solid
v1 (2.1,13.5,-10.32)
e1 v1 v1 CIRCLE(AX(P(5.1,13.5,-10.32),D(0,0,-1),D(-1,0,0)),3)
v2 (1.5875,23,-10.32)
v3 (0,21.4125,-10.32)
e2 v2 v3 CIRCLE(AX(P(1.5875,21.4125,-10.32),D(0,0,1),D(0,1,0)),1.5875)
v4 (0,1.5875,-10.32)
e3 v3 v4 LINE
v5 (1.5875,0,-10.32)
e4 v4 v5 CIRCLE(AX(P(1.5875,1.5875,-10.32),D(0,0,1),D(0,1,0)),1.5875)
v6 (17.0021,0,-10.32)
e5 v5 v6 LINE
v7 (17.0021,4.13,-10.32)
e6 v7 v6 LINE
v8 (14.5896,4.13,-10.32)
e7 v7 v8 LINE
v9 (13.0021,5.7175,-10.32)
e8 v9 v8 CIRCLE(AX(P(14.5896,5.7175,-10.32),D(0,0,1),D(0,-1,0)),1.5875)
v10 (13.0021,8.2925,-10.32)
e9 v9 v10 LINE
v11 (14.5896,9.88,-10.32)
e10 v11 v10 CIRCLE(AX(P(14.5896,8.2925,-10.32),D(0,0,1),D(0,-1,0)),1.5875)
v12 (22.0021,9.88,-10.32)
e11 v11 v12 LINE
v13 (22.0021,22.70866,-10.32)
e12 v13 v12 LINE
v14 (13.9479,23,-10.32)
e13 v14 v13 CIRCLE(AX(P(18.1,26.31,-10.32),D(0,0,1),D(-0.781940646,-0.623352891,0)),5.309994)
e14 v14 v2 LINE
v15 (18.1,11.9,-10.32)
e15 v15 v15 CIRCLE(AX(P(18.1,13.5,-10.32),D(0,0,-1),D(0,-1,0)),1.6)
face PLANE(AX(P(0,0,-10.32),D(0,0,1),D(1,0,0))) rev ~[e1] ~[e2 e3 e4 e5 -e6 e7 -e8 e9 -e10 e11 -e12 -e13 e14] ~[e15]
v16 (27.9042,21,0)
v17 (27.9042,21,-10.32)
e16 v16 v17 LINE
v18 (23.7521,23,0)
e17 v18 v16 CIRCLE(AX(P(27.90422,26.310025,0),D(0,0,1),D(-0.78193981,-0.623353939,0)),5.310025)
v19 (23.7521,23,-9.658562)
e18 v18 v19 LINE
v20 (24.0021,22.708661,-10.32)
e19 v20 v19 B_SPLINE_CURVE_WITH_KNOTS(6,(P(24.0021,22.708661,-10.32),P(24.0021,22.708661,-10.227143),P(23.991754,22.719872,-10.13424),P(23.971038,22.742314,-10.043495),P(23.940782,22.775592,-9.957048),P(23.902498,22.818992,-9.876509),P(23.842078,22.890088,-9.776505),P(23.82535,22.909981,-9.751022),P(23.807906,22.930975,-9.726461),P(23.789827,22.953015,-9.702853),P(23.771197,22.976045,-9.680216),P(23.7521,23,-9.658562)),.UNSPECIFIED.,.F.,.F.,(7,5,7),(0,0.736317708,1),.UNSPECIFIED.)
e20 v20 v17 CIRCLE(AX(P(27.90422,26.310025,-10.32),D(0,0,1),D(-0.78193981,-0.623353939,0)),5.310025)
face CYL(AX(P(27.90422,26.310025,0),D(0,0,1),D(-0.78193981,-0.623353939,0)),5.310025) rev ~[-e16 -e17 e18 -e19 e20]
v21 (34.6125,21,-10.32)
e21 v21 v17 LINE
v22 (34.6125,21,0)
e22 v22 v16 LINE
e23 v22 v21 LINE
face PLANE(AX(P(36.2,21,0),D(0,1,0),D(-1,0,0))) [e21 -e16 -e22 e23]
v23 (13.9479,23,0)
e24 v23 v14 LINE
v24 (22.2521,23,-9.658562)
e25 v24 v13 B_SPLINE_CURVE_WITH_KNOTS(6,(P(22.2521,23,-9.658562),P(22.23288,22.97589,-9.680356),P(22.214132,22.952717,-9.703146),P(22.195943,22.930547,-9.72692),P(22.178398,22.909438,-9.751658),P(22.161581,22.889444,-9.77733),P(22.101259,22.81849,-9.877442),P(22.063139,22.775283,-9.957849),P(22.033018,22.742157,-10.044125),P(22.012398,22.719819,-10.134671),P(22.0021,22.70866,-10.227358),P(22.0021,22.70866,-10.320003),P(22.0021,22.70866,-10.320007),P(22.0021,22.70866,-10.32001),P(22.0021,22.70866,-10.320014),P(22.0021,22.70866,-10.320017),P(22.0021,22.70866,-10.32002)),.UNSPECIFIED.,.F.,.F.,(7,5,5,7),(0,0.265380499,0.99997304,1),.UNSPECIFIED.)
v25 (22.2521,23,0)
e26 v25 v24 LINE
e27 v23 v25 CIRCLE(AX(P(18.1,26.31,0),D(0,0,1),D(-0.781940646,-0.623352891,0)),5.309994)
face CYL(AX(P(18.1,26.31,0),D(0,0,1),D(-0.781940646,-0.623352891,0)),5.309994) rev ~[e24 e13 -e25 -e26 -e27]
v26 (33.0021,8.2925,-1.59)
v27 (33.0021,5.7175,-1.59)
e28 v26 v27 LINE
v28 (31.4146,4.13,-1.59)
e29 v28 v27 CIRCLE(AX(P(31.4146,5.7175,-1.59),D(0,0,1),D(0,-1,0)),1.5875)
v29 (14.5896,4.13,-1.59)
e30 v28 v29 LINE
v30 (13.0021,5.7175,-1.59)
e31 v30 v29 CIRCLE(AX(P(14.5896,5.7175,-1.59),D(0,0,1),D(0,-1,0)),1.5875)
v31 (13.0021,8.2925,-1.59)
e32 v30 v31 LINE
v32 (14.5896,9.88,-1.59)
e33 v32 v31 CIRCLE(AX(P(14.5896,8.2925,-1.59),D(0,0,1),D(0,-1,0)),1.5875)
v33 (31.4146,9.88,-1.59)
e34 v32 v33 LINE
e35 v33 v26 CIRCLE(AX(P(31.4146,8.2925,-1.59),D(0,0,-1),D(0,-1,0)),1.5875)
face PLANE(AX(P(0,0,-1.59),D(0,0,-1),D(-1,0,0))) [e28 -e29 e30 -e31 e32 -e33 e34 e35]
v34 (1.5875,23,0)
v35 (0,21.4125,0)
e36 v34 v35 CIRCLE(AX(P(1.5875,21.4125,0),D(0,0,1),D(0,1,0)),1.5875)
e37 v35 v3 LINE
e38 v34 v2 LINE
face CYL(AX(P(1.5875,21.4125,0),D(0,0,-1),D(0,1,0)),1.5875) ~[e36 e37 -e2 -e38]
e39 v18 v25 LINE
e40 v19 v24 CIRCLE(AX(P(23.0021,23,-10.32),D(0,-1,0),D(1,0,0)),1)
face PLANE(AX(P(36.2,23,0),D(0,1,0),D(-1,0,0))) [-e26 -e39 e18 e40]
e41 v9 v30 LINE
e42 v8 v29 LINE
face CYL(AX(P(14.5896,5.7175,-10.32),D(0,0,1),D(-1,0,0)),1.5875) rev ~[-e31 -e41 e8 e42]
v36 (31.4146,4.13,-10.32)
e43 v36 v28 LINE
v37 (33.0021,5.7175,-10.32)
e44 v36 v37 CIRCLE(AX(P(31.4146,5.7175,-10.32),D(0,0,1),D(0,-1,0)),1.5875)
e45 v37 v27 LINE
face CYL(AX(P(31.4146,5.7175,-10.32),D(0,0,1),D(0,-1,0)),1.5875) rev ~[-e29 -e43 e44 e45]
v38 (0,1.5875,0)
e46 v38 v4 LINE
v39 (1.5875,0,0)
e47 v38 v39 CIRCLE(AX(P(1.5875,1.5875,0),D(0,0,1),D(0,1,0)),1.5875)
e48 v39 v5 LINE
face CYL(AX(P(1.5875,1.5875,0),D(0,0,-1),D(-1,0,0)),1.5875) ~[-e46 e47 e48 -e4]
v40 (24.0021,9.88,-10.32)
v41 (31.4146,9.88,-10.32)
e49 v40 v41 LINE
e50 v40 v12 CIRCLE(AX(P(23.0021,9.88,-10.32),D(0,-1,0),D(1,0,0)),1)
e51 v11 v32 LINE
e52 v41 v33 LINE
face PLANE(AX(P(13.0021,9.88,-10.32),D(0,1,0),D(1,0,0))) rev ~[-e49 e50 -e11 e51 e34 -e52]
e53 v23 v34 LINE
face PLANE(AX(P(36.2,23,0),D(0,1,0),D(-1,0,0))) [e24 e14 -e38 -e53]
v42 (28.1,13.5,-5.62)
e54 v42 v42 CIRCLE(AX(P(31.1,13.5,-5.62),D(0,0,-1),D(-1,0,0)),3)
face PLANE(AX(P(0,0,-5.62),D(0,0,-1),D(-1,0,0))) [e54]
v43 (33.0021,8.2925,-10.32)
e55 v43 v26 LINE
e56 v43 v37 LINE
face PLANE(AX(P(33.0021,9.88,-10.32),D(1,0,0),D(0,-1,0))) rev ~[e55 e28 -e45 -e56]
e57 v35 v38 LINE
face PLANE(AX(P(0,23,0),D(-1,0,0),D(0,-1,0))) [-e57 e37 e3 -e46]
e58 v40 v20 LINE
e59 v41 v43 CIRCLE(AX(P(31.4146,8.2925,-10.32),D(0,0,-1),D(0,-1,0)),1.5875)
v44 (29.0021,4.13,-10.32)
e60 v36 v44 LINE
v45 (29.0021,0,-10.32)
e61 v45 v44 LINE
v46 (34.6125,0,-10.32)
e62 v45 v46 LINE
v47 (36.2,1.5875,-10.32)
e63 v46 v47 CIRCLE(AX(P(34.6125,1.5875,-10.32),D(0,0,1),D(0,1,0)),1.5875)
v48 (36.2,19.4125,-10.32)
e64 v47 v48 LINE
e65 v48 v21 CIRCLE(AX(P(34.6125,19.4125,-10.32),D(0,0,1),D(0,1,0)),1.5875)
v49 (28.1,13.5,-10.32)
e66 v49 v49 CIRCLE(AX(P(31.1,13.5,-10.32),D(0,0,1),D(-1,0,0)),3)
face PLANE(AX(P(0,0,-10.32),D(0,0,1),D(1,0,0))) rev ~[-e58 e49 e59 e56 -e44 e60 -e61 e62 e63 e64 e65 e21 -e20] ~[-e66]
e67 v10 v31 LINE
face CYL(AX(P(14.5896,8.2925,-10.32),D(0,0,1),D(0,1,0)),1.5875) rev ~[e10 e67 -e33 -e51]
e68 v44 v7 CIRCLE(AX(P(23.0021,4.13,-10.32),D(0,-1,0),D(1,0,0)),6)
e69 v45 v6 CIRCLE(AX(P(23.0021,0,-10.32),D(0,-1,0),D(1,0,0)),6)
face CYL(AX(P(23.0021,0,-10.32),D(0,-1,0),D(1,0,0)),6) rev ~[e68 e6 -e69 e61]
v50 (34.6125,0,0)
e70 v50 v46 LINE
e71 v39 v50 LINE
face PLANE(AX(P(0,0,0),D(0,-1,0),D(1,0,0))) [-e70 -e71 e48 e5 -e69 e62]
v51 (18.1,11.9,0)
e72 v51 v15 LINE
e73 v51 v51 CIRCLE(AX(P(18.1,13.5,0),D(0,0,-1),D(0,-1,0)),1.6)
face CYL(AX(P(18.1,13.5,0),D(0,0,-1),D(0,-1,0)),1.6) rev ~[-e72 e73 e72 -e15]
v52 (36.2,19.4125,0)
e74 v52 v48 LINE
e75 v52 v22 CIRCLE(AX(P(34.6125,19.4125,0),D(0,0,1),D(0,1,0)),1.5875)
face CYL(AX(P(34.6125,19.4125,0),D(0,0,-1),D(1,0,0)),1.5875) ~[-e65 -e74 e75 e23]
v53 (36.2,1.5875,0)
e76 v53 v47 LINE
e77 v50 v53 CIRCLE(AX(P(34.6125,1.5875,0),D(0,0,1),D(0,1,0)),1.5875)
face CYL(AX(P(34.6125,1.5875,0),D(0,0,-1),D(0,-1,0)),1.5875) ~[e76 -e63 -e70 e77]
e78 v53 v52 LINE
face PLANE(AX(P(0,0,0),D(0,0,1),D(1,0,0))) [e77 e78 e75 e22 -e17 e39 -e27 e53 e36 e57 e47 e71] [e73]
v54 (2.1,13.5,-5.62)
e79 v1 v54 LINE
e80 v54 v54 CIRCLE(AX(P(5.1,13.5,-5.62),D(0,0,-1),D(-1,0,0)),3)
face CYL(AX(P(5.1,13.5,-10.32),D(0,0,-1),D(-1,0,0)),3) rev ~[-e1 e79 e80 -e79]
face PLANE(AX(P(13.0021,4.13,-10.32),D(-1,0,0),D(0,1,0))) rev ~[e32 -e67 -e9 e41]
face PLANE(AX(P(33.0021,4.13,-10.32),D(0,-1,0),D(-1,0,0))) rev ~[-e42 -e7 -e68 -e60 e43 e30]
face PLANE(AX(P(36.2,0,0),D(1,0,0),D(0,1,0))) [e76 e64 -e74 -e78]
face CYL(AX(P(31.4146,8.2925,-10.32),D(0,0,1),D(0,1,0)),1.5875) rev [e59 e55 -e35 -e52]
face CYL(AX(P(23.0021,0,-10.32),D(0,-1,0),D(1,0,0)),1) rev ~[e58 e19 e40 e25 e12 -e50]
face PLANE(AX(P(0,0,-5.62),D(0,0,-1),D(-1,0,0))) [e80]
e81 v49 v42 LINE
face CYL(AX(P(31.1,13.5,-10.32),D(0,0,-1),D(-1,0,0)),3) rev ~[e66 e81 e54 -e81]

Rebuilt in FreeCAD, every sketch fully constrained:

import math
import FreeCAD as App
import Part
import Sketcher
from FreeCAD import Vector
Q = App.Units.Quantity


def edges_at(feature, points):
    """Names of the edges that pass closest to the given points."""
    edges = feature.Shape.Edges
    near = lambda p: min(range(len(edges)), key=lambda i: edges[i].distToShape(Part.Vertex(*p))[0])
    return sorted({f"Edge{near(p) + 1}" for p in points})


def add_polygon(sketch, points):
    """Adds a closed chain of lines whose ends are joined by coincident constraints."""
    first, n = sketch.GeometryCount, len(points)
    for a, b in zip(points, points[1:] + points[:1]):
        sketch.addGeometry(Part.LineSegment(App.Vector(*a, 0), App.Vector(*b, 0)), False)
    for i in range(n):
        sketch.addConstraint(Sketcher.Constraint("Coincident", first + i, 2, first + (i + 1) % n, 1))

doc = App.newDocument("Part")
body = doc.addObject("PartDesign::Body", "Body")

# Sketch on XY plane
sketch1 = body.newObject("Sketcher::SketchObject", "Sketch")
sketch1.AttachmentSupport = (doc.getObject("XY_Plane"), [""])
sketch1.MapMode = "FlatFace"
add_polygon(sketch1, [(0, 23), (0, 0), (36.2, 0), (36.2, 23)])  # lines 0-3
sketch1.addConstraint(Sketcher.Constraint("Vertical", 0))
sketch1.addConstraint(Sketcher.Constraint("Horizontal", 1))
sketch1.addConstraint(Sketcher.Constraint("Vertical", 2))
sketch1.addConstraint(Sketcher.Constraint("Horizontal", 3))
sketch1.addConstraint(Sketcher.Constraint("Coincident", 0, 2, -1, 1))
sketch1.addConstraint(Sketcher.Constraint("DistanceY", 0, 2, 0, 1, Q("23 mm")))
sketch1.addConstraint(Sketcher.Constraint("DistanceX", 1, 1, 1, 2, Q("36.2 mm")))
pad1 = body.newObject("PartDesign::Pad", "Pad")
pad1.Profile = sketch1
pad1.Length = 10.32
pad1.Reversed = True

# Sketch on XY plane
sketch2 = body.newObject("Sketcher::SketchObject", "Sketch001")
sketch2.AttachmentSupport = (doc.getObject("XY_Plane"), [""])
sketch2.MapMode = "FlatFace"
sketch2.addGeometry(Part.Circle(Vector(18.1, 13.5, 0), Vector(0, 0, 1), 1.6), False)
sketch2.addConstraint(Sketcher.Constraint("Diameter", 0, Q("3.2 mm")))
sketch2.addConstraint(Sketcher.Constraint("DistanceX", -1, 1, 0, 3, Q("18.1 mm")))
sketch2.addConstraint(Sketcher.Constraint("DistanceY", -1, 1, 0, 3, Q("13.5 mm")))
doc.recompute()
hole = body.newObject("PartDesign::Hole", "Hole")
hole.Profile = sketch2
hole.ThreadType = "None"
hole.Diameter = 3.2
hole.DepthType = "ThroughAll"

# Sketch on XY plane
sketch3 = body.newObject("Sketcher::SketchObject", "Sketch002")
sketch3.AttachmentSupport = (doc.getObject("XY_Plane"), [""])
sketch3.MapMode = "FlatFace"
sketch3.addGeometry(Part.LineSegment(Vector(27.9042, 21, 0), Vector(36.2, 21, 0)), False)
sketch3.addGeometry(Part.LineSegment(Vector(36.2, 21, 0), Vector(36.2, 23, 0)), False)
sketch3.addGeometry(Part.LineSegment(Vector(36.2, 23, 0), Vector(23.7521, 23, 0)), False)
sketch3.addGeometry(Part.ArcOfCircle(Part.Circle(Vector(27.9042, 26.31, 0), Vector(0, 0, 1), 5.309994), math.radians(-141.438604), math.radians(-90)), False)
sketch3.addGeometry(Part.LineSegment(Vector(22.2521, 23, 0), Vector(13.9479, 23, 0)), False)
sketch3.addGeometry(Part.ArcOfCircle(Part.Circle(Vector(18.1, 26.31, 0), Vector(0, 0, 1), 5.309994), math.radians(-141.438604), math.radians(-38.561396)), False)
sketch3.addConstraint(Sketcher.Constraint("Coincident", 0, 2, 1, 1))
sketch3.addConstraint(Sketcher.Constraint("Coincident", 1, 2, 2, 1))
sketch3.addConstraint(Sketcher.Constraint("Coincident", 2, 2, 3, 1))
sketch3.addConstraint(Sketcher.Constraint("Tangent", 3, 2, 0, 1))
sketch3.addConstraint(Sketcher.Constraint("Coincident", 4, 1, 5, 2))
sketch3.addConstraint(Sketcher.Constraint("Coincident", 5, 1, 4, 2))
sketch3.addConstraint(Sketcher.Constraint("Horizontal", 0))
sketch3.addConstraint(Sketcher.Constraint("Vertical", 1))
sketch3.addConstraint(Sketcher.Constraint("Horizontal", 2))
sketch3.addConstraint(Sketcher.Constraint("Horizontal", 4))
sketch3.addConstraint(Sketcher.Constraint("Equal", 3, 5))
sketch3.addConstraint(Sketcher.Constraint("Horizontal", 3, 3, 5, 3))
sketch3.addConstraint(Sketcher.Constraint("Horizontal", 2, 2, 4, 1))
sketch3.addConstraint(Sketcher.Constraint("Radius", 3, Q("5.31 mm")))
sketch3.addConstraint(Sketcher.Constraint("DistanceY", -1, 1, 0, 2, Q("21 mm")))
sketch3.addConstraint(Sketcher.Constraint("DistanceX", 4, 1, 2, 2, Q("1.5 mm")))
sketch3.addConstraint(Sketcher.Constraint("DistanceY", 1, 1, 1, 2, Q("2 mm")))
sketch3.addConstraint(Sketcher.Constraint("DistanceX", -1, 1, 5, 3, Q("18.1 mm")))
sketch3.addConstraint(Sketcher.Constraint("DistanceX", -1, 1, 0, 2, Q("36.2 mm")))
pocket1 = body.newObject("PartDesign::Pocket", "Pocket")
pocket1.Profile = sketch3
pocket1.Length = 10.32

# Sketch on XY plane
sketch4 = body.newObject("Sketcher::SketchObject", "Sketch003")
sketch4.AttachmentSupport = (doc.getObject("XY_Plane"), [""])
sketch4.MapMode = "FlatFace"
sketch4.AttachmentOffset = App.Placement(Vector(0, 0, -10.32), App.Rotation())
sketch4.addGeometry(Part.Circle(Vector(31.1, 13.5, 0), Vector(0, 0, 1), 3), False)
sketch4.addGeometry(Part.Circle(Vector(5.1, 13.5, 0), Vector(0, 0, 1), 3), False)
sketch4.addConstraint(Sketcher.Constraint("Equal", 0, 1))
sketch4.addConstraint(Sketcher.Constraint("Horizontal", 0, 3, 1, 3))
sketch4.addConstraint(Sketcher.Constraint("Diameter", 0, Q("6 mm")))
sketch4.addConstraint(Sketcher.Constraint("DistanceX", 1, 3, 0, 3, Q("26 mm")))
sketch4.addConstraint(Sketcher.Constraint("DistanceX", -1, 1, 0, 3, Q("31.1 mm")))
sketch4.addConstraint(Sketcher.Constraint("DistanceY", -1, 1, 0, 3, Q("13.5 mm")))
pocket2 = body.newObject("PartDesign::Pocket", "Pocket001")
pocket2.Profile = sketch4
pocket2.Length = 4.7
pocket2.Reversed = True

# Sketch on XY plane
sketch5 = body.newObject("Sketcher::SketchObject", "Sketch004")
sketch5.AttachmentSupport = (doc.getObject("XY_Plane"), [""])
sketch5.MapMode = "FlatFace"
sketch5.AttachmentOffset = App.Placement(Vector(0, 0, -10.32), App.Rotation())
add_polygon(sketch5, [(33.0021, 9.88), (33.0021, 4.13), (13.0021, 4.13), (13.0021, 9.88)])  # lines 0-3
sketch5.addConstraint(Sketcher.Constraint("Vertical", 0))
sketch5.addConstraint(Sketcher.Constraint("Horizontal", 1))
sketch5.addConstraint(Sketcher.Constraint("Vertical", 2))
sketch5.addConstraint(Sketcher.Constraint("Horizontal", 3))
sketch5.addConstraint(Sketcher.Constraint("DistanceX", 1, 2, 1, 1, Q("20 mm")))
sketch5.addConstraint(Sketcher.Constraint("DistanceY", 0, 2, 0, 1, Q("5.75 mm")))
sketch5.addConstraint(Sketcher.Constraint("DistanceY", -1, 1, 0, 2, Q("4.13 mm")))
sketch5.addConstraint(Sketcher.Constraint("DistanceX", -1, 1, 0, 2, Q("33.002 mm")))
pocket3 = body.newObject("PartDesign::Pocket", "Pocket002")
pocket3.Profile = sketch5
pocket3.Length = 8.73
pocket3.Reversed = True
doc.recompute()

fillet = body.newObject("PartDesign::Fillet", "Fillet")
fillet.Base = (pocket3, edges_at(pocket3, [
    (13.002, 9.88, -5.955),
    (13.002, 4.13, -5.955),
    (33.002, 9.88, -5.955),
    (33.002, 4.13, -5.955),
]))
fillet.Radius = 1.5875
doc.recompute()

fillet2 = body.newObject("PartDesign::Fillet", "Fillet001")
fillet2.Base = (fillet, edges_at(fillet, [
    (36.2, 21, -5.16),
    (36.2, 0, -5.16),
    (0, 0, -5.16),
    (0, 23, -5.16),
]))
fillet2.Radius = 1.5875

# Sketch on XZ plane
sketch6 = body.newObject("Sketcher::SketchObject", "Sketch005")
sketch6.AttachmentSupport = (doc.getObject("XZ_Plane"), [""])
sketch6.MapMode = "FlatFace"
sketch6.addGeometry(Part.Circle(Vector(23.0021, -10.32, 0), Vector(0, 0, 1), 1), False)
sketch6.addConstraint(Sketcher.Constraint("Diameter", 0, Q("2 mm")))
sketch6.addConstraint(Sketcher.Constraint("DistanceY", 0, 3, -1, 1, Q("10.32 mm")))
sketch6.addConstraint(Sketcher.Constraint("DistanceX", -1, 1, 0, 3, Q("23.002 mm")))
pocket4 = body.newObject("PartDesign::Pocket", "Pocket003")
pocket4.Profile = sketch6
pocket4.Type = "ThroughAll"

# Sketch on XZ plane
sketch7 = body.newObject("Sketcher::SketchObject", "Sketch006")
sketch7.AttachmentSupport = (doc.getObject("XZ_Plane"), [""])
sketch7.MapMode = "FlatFace"
sketch7.addGeometry(Part.Circle(Vector(23.0021, -10.32, 0), Vector(0, 0, 1), 6), False)
sketch7.addConstraint(Sketcher.Constraint("Diameter", 0, Q("12 mm")))
sketch7.addConstraint(Sketcher.Constraint("DistanceY", 0, 3, -1, 1, Q("10.32 mm")))
sketch7.addConstraint(Sketcher.Constraint("DistanceX", -1, 1, 0, 3, Q("23.002 mm")))
pocket5 = body.newObject("PartDesign::Pocket", "Pocket004")
pocket5.Profile = sketch7
pocket5.Length = 4.13

doc.recompute()
